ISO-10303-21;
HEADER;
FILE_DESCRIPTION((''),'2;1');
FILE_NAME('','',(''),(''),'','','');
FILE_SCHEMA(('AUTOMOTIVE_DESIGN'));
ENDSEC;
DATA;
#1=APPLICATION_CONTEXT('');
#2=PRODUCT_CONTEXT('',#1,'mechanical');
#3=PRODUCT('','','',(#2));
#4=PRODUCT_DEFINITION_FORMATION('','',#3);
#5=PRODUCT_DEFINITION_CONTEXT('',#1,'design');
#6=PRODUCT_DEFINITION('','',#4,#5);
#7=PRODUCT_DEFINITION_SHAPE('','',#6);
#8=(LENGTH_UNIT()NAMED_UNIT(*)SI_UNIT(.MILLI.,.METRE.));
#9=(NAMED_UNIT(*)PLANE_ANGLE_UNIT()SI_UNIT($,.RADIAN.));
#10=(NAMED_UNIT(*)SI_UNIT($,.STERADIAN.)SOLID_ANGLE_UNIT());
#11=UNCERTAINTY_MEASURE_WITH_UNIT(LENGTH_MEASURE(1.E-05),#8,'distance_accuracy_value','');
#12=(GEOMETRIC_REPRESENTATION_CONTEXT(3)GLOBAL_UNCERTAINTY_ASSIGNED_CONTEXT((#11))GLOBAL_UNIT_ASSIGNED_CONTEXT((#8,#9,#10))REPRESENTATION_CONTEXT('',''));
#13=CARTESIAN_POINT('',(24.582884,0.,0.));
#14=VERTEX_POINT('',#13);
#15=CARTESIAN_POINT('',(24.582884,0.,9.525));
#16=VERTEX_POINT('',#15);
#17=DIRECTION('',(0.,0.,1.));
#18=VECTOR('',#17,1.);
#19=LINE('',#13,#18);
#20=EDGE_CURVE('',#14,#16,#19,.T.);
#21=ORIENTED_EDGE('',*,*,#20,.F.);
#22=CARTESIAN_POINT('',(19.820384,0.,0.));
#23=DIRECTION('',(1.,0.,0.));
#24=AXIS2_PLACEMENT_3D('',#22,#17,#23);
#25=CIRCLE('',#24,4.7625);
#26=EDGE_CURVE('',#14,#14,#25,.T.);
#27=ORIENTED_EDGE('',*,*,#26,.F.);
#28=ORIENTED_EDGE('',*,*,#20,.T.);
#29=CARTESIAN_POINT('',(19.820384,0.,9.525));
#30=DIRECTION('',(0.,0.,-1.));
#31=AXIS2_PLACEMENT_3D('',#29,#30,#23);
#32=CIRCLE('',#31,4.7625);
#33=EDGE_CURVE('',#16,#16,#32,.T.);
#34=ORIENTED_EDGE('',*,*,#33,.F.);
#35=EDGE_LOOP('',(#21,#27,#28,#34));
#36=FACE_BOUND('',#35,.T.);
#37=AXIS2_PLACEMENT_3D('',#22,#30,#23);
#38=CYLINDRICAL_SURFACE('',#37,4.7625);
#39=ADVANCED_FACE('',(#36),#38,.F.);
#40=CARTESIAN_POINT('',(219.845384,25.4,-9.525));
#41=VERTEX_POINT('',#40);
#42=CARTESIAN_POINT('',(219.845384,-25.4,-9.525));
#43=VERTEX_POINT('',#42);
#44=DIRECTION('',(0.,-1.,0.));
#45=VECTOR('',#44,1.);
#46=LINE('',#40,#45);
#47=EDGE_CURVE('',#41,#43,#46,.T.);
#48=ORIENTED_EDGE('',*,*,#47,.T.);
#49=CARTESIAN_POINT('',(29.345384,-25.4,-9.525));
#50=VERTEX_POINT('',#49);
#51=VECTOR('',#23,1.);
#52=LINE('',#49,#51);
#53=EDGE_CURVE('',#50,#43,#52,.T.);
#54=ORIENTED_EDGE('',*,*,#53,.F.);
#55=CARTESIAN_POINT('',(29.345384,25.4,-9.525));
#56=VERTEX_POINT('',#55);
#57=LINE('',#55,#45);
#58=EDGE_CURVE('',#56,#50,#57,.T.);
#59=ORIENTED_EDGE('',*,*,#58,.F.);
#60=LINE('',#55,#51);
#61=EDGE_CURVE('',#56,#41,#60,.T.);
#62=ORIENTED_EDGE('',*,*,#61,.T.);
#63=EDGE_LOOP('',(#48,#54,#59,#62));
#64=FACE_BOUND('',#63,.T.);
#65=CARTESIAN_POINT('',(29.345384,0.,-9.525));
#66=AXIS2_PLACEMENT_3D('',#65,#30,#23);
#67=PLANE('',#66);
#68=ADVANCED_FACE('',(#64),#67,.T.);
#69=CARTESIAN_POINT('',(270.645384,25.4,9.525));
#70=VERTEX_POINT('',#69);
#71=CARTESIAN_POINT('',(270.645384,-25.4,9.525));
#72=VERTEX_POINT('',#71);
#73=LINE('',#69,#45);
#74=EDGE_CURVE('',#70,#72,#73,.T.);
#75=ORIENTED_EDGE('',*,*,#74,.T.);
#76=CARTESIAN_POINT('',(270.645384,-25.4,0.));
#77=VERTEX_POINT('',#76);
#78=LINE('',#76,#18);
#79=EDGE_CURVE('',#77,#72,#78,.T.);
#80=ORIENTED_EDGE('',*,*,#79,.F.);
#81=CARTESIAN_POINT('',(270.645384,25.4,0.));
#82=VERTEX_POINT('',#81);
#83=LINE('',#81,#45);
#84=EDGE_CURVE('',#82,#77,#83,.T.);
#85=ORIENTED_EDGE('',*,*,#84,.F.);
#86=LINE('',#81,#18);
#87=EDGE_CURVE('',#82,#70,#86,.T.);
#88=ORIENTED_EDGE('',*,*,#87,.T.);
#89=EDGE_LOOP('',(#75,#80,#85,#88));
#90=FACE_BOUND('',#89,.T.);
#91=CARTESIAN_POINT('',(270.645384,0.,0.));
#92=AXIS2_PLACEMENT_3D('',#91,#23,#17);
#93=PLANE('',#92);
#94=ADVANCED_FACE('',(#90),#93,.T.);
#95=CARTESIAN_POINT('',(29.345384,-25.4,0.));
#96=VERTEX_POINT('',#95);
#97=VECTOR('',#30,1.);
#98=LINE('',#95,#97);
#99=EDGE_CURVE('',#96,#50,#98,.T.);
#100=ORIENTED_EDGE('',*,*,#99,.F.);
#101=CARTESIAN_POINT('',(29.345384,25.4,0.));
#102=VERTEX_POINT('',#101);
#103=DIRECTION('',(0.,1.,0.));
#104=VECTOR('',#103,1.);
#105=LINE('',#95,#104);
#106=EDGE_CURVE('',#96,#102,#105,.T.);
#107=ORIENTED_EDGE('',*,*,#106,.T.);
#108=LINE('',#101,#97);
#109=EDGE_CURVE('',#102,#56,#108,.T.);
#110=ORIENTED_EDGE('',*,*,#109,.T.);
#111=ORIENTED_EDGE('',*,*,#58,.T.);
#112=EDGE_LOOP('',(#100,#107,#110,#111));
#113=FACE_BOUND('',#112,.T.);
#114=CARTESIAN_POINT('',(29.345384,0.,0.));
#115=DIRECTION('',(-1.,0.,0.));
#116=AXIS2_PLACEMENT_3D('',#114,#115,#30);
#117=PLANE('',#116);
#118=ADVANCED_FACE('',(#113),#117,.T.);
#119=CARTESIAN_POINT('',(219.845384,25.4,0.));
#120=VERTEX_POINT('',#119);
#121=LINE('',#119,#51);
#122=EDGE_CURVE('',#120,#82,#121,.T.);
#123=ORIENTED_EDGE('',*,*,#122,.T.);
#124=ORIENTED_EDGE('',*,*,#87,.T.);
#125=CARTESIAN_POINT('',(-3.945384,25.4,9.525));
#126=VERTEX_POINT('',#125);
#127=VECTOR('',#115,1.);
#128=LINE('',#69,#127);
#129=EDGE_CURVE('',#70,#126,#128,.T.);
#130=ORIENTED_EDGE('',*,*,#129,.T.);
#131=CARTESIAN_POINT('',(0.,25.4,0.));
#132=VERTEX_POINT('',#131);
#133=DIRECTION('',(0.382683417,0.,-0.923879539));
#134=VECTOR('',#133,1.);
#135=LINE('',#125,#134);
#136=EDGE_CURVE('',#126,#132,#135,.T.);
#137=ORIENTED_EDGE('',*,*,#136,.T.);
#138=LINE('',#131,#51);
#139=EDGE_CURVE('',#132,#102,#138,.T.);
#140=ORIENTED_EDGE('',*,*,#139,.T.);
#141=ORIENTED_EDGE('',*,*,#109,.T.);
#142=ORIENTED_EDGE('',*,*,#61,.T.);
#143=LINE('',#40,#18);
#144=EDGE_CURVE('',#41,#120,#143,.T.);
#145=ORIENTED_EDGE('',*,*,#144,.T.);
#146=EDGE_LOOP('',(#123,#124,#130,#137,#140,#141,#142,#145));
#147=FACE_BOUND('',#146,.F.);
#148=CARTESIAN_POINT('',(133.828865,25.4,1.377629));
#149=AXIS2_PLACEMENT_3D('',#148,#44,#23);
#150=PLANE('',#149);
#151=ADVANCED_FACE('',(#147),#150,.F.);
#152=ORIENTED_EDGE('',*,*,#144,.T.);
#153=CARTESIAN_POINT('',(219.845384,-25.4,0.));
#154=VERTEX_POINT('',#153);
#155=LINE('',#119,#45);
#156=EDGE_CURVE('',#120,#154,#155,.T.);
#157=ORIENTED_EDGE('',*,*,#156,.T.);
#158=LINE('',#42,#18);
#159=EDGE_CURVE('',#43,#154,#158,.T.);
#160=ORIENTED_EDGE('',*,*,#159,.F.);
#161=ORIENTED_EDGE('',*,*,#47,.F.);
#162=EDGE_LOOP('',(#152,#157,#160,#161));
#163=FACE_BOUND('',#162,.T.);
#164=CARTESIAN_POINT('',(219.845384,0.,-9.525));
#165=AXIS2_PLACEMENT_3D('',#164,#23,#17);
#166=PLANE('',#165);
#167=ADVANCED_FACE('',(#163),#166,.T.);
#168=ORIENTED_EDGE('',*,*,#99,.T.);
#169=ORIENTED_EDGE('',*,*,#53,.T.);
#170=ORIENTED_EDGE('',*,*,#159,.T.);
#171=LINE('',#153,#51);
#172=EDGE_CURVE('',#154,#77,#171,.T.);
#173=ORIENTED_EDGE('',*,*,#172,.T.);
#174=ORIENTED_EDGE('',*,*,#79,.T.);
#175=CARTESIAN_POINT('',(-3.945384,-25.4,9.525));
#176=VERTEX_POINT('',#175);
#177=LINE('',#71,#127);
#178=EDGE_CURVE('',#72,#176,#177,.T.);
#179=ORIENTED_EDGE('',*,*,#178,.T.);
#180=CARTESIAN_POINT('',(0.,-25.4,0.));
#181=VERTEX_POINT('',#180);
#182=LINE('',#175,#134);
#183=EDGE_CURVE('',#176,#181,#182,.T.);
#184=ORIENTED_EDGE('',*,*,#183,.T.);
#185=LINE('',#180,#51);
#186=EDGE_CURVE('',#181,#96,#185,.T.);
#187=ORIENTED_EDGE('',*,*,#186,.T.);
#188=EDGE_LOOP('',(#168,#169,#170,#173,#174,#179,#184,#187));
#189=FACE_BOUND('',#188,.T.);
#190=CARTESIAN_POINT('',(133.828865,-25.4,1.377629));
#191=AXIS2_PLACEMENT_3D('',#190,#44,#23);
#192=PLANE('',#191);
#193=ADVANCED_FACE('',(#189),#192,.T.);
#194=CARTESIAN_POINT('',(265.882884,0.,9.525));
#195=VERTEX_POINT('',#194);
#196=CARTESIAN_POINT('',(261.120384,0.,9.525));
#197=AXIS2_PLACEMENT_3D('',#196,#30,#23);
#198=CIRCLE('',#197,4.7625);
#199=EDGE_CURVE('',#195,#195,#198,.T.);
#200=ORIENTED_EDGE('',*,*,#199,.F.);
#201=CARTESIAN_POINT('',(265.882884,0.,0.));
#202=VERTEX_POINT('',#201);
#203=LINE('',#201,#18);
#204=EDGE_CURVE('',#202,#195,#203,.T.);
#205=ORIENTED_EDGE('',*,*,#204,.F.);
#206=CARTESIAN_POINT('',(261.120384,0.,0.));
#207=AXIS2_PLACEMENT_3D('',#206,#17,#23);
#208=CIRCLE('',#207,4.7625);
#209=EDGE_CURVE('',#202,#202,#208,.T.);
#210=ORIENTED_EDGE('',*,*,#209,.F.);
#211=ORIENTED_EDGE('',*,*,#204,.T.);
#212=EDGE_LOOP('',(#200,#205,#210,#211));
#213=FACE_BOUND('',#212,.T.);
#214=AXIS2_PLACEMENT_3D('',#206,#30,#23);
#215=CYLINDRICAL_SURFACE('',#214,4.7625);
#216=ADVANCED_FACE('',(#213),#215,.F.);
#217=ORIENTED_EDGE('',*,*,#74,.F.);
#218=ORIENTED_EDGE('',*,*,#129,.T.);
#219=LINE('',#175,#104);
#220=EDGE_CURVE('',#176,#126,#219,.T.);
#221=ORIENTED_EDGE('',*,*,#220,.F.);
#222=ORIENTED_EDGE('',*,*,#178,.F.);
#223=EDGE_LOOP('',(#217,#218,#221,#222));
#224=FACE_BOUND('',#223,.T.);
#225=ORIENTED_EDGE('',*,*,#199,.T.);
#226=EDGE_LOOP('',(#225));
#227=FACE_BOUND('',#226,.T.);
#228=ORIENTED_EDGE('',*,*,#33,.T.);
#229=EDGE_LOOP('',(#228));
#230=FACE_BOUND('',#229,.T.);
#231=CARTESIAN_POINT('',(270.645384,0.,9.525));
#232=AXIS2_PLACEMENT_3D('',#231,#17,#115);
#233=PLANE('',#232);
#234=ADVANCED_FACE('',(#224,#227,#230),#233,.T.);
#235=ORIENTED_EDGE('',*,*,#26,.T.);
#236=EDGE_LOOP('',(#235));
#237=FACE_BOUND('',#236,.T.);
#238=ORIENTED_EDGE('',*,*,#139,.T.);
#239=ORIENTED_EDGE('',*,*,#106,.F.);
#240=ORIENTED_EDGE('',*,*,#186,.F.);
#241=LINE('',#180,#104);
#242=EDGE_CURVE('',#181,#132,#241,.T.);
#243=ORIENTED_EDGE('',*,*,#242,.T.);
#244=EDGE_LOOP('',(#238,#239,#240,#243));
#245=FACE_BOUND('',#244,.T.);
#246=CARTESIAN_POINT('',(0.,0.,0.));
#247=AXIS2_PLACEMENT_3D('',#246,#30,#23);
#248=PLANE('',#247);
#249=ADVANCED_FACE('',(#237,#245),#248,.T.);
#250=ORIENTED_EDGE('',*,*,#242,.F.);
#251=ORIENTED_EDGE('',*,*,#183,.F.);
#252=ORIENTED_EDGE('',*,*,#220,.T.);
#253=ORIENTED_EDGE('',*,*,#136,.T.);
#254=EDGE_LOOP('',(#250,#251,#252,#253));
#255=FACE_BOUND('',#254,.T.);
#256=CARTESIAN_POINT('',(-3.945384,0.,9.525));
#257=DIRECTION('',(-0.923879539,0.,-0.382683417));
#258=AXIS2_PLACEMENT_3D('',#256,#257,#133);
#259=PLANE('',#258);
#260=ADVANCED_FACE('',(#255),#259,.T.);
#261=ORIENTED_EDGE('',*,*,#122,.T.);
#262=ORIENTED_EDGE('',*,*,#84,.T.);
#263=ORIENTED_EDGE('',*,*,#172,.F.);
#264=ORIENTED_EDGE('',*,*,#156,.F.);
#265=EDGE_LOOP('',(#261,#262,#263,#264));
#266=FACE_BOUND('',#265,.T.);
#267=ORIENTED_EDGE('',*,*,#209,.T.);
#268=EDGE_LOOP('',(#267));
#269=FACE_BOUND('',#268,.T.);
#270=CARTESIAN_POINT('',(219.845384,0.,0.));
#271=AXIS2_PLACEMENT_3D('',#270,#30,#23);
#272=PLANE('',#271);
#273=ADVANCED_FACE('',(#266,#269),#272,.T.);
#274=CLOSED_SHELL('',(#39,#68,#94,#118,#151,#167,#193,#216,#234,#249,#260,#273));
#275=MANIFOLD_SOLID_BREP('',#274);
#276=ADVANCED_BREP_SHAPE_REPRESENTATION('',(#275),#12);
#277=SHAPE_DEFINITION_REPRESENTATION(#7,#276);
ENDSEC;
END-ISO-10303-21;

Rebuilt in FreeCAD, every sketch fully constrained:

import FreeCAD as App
import Part
import Sketcher

V = App.Vector
Q = App.Units.Quantity

doc = App.newDocument("Part")
body = doc.addObject("PartDesign::Body", "Body")

# Sketch on XZ plane
sketch1 = body.newObject("Sketcher::SketchObject", "Sketch")
sketch1.AttachmentSupport = (doc.getObject("XZ_Plane"), [""])
sketch1.MapMode = "FlatFace"
sketch1.addGeometry([
    Part.LineSegment(V(29, 0, 0), V(29, -10, 0)),  # 0
    Part.LineSegment(V(29, -10, 0), V(220, -10, 0)),  # 1
    Part.LineSegment(V(220, -10, 0), V(220, 0, 0)),  # 2
    Part.LineSegment(V(220, 0, 0), V(271, 0, 0)),  # 3
    Part.LineSegment(V(271, 0, 0), V(271, 10, 0)),  # 4
    Part.LineSegment(V(271, 10, 0), V(-4, 10, 0)),  # 5
    Part.LineSegment(V(-4, 10, 0), V(0, 0, 0)),  # 6
    Part.LineSegment(V(0, 0, 0), V(29, 0, 0)),  # 7
], False)
sketch1.addConstraint([
    Sketcher.Constraint("Coincident", 0, 2, 1, 1),
    Sketcher.Constraint("Coincident", 1, 2, 2, 1),
    Sketcher.Constraint("Coincident", 2, 2, 3, 1),
    Sketcher.Constraint("Coincident", 3, 2, 4, 1),
    Sketcher.Constraint("Coincident", 4, 2, 5, 1),
    Sketcher.Constraint("Coincident", 5, 2, 6, 1),
    Sketcher.Constraint("Coincident", 6, 2, 7, 1),
    Sketcher.Constraint("Coincident", 7, 2, 0, 1),
    Sketcher.Constraint("Vertical", 0),
    Sketcher.Constraint("Horizontal", 1),
    Sketcher.Constraint("Vertical", 2),
    Sketcher.Constraint("Horizontal", 3),
    Sketcher.Constraint("Vertical", 4),
    Sketcher.Constraint("Horizontal", 5),
    Sketcher.Constraint("Horizontal", 7),
    Sketcher.Constraint("Coincident", 6, 2, -1, 1),
    Sketcher.Constraint("PointOnObject", 2, 2, -1),
    Sketcher.Constraint("Equal", 2, 4),
    Sketcher.Constraint("DistanceX", 3, 1, 3, 2, Q("2 in")),
    Sketcher.Constraint("DistanceX", 1, 1, 1, 2, Q("7.5 in")),
    Sketcher.Constraint("Angle", 6, Q("-67.500001 deg")),
    Sketcher.Constraint("DistanceY", 0, 2, 0, 1, Q("0.375 in")),
    Sketcher.Constraint("DistanceX", 5, 2, 5, 1, Q("274.590768 mm")),
])
pad1 = body.newObject("PartDesign::Pad", "Pad")
pad1.Profile = sketch1
pad1.Length = Q("2 in")
pad1.Midplane = True

# Sketch on XY plane
sketch2 = body.newObject("Sketcher::SketchObject", "Sketch001")
sketch2.AttachmentSupport = (doc.getObject("XY_Plane"), [""])
sketch2.MapMode = "FlatFace"
sketch2.addGeometry([
    Part.Circle(V(261.1, 0, 0), V(0, 0, 1), 4.8),
    Part.Circle(V(19.8, 0, 0), V(0, 0, 1), 4.8),
], False)
sketch2.addConstraint([
    Sketcher.Constraint("Equal", 0, 1),
    Sketcher.Constraint("PointOnObject", 0, 3, -1),
    Sketcher.Constraint("PointOnObject", 1, 3, -1),
    Sketcher.Constraint("Diameter", 0, Q("0.375 in")),
    Sketcher.Constraint("DistanceX", 1, 3, 0, 3, Q("9.5 in")),
    Sketcher.Constraint("DistanceX", -1, 1, 0, 3, Q("261.120384 mm")),
])
pocket1 = body.newObject("PartDesign::Pocket", "Pocket")
pocket1.Profile = sketch2
pocket1.Length = Q("1 in")
pocket1.Reversed = True

doc.recompute()
